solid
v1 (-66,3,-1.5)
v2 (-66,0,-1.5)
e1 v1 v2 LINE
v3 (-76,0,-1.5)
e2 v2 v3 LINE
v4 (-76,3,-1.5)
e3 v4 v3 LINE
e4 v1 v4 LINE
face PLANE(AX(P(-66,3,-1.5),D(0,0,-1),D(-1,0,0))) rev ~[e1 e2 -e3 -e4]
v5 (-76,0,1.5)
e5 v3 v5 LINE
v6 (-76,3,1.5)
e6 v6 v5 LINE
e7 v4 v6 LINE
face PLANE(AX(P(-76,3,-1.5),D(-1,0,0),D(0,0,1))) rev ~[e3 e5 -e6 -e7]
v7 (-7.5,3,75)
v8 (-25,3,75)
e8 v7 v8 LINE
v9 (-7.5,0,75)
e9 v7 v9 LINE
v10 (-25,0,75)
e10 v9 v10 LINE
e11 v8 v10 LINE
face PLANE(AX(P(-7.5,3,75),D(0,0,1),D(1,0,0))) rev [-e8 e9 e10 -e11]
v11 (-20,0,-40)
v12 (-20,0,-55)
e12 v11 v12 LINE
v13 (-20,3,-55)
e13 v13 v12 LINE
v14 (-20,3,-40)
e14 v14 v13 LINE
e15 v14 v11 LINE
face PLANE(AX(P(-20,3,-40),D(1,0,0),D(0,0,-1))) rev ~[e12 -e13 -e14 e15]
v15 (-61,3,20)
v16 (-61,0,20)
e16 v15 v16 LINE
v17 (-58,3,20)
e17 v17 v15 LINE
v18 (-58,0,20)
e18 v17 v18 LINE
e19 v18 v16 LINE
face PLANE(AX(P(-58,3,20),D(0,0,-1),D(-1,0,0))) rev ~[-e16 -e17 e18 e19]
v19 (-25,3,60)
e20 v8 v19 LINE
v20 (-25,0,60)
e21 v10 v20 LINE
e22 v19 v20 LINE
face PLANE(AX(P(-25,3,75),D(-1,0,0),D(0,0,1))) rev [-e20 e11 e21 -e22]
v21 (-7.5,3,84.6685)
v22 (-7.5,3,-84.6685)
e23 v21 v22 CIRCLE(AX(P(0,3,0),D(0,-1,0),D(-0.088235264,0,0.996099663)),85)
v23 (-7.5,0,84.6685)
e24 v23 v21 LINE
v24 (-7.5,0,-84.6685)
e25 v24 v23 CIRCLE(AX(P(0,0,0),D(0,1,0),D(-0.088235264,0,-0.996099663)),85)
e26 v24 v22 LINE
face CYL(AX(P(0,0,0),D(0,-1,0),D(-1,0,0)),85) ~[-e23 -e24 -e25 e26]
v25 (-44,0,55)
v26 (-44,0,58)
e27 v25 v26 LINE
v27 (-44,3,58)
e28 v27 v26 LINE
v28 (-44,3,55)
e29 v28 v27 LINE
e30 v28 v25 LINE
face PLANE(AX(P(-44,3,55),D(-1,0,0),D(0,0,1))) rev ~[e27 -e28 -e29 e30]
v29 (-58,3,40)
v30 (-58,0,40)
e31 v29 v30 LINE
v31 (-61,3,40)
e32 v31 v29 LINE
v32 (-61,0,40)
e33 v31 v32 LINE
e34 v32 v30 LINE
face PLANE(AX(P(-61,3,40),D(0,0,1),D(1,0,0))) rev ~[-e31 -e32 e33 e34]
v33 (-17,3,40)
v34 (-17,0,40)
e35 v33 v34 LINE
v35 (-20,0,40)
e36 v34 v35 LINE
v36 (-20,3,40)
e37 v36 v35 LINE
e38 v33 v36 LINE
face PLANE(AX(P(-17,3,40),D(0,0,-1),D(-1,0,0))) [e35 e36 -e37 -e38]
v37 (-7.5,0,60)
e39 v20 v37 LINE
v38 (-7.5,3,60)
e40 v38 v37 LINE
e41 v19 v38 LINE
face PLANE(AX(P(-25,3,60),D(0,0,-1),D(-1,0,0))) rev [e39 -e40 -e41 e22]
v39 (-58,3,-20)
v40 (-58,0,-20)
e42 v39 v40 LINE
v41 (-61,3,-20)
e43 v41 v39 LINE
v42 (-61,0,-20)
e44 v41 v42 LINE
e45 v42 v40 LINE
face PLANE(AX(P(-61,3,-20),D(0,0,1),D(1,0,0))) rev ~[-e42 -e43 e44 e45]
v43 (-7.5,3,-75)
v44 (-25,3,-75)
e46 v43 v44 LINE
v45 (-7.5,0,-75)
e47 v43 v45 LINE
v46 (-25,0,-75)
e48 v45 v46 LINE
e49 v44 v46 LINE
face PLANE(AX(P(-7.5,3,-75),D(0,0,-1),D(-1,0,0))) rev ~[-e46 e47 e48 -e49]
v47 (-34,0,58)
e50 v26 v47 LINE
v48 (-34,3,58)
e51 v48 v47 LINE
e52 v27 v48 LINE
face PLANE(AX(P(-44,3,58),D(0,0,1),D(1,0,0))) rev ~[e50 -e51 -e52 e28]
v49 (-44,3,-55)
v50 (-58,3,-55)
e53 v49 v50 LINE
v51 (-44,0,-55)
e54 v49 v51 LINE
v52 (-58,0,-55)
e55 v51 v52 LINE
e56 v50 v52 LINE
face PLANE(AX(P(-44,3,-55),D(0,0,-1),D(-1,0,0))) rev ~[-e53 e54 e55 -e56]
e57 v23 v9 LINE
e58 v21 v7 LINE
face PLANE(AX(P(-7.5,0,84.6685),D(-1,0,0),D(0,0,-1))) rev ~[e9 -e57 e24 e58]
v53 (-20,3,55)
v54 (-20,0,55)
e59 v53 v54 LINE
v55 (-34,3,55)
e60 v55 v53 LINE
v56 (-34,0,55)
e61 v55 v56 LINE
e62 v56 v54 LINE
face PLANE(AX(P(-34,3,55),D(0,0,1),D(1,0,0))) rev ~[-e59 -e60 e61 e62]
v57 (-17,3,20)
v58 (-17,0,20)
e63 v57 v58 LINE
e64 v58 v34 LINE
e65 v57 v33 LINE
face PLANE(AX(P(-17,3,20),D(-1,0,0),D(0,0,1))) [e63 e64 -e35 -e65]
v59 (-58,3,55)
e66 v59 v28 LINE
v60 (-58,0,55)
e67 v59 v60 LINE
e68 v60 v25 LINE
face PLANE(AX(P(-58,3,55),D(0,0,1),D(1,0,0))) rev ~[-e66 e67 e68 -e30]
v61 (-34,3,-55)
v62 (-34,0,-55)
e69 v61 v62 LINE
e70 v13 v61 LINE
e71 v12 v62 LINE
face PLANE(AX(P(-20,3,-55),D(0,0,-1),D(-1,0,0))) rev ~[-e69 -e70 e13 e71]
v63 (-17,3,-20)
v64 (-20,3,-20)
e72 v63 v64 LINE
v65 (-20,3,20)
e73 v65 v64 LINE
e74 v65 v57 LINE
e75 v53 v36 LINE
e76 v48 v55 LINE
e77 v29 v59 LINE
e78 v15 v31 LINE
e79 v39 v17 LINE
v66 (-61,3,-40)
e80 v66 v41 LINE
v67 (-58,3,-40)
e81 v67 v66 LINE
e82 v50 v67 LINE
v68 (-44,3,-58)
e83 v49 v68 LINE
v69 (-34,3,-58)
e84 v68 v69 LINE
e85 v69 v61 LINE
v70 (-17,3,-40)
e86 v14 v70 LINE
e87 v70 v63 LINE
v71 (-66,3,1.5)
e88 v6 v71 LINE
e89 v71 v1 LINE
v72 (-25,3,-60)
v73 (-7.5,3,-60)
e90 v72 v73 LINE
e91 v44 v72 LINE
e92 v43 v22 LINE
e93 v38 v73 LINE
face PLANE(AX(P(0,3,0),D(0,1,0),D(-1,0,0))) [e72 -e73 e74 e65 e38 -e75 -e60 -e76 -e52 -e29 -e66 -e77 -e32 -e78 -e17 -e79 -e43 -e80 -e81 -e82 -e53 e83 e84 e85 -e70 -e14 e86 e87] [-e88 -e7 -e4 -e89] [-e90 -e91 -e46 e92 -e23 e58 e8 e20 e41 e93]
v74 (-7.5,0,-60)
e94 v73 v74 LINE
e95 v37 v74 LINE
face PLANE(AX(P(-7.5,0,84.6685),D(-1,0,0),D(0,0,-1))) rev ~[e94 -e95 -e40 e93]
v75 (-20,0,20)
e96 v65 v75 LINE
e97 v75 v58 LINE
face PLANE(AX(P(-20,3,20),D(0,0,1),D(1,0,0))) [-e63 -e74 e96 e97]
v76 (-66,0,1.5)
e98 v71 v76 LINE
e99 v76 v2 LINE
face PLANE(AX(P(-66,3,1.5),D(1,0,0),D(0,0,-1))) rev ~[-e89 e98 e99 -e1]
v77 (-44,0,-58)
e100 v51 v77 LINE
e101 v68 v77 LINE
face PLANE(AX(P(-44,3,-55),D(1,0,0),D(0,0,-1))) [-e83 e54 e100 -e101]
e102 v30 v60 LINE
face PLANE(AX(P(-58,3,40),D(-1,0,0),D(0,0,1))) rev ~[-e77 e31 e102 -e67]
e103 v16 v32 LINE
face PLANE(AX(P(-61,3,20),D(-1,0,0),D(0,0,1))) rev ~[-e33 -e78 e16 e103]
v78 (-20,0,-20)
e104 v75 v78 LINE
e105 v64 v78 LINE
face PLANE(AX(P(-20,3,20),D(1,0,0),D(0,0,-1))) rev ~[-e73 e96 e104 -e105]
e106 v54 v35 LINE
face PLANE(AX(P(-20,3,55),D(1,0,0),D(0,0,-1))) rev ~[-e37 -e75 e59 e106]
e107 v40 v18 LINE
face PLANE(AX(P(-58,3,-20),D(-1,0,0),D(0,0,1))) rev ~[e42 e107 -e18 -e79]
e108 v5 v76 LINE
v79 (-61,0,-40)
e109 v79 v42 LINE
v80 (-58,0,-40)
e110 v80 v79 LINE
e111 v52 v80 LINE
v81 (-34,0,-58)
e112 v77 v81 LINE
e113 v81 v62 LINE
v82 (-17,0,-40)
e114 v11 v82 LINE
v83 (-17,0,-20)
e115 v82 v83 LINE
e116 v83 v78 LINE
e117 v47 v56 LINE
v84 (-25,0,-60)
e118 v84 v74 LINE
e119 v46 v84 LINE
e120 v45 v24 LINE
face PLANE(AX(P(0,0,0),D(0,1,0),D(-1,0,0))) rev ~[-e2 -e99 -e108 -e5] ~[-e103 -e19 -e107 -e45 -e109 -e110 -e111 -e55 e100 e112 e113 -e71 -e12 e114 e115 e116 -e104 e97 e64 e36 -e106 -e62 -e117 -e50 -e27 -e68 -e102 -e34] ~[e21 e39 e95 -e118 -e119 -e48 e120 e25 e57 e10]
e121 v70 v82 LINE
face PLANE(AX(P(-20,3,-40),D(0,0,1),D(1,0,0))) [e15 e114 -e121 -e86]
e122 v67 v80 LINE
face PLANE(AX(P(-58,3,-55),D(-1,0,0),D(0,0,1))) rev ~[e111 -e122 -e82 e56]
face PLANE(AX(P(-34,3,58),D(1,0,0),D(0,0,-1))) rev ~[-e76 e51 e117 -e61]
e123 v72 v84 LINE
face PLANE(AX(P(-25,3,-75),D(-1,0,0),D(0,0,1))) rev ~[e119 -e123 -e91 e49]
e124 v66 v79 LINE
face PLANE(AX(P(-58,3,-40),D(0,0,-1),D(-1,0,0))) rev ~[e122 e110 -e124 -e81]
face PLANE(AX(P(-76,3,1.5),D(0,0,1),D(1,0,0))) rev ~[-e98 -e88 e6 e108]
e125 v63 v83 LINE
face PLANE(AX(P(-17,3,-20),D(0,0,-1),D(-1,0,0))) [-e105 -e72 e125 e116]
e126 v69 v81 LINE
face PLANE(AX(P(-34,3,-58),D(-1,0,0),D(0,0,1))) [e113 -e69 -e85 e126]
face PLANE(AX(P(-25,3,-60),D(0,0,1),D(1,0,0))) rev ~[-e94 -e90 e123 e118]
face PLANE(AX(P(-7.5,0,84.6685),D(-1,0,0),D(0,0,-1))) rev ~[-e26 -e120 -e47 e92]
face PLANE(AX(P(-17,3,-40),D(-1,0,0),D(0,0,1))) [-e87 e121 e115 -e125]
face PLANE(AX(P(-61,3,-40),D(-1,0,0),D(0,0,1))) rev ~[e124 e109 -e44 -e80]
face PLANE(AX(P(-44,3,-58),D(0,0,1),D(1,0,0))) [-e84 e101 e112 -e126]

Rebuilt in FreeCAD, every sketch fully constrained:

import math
import FreeCAD as App
import Part
import Sketcher
from FreeCAD import Vector
Q = App.Units.Quantity

doc = App.newDocument("Part")
body = doc.addObject("PartDesign::Body", "Body")

# Sketch on XZ plane
sketch1 = body.newObject("Sketcher::SketchObject", "Sketch")
sketch1.AttachmentSupport = (doc.getObject("XZ_Plane"), [""])
sketch1.MapMode = "FlatFace"
sketch1.addGeometry(Part.ArcOfCircle(Part.Circle(Vector(0, 0, 0), Vector(0, 0, 1), 85), math.radians(95.062091), math.radians(264.937909)), False)
sketch1.addGeometry(Part.LineSegment(Vector(-7.5, -84.6685, 0), Vector(-7.5, 84.6685, 0)), False)
sketch1.addConstraint(Sketcher.Constraint("Coincident", 0, 1, 1, 2))
sketch1.addConstraint(Sketcher.Constraint("Coincident", 1, 1, 0, 2))
sketch1.addConstraint(Sketcher.Constraint("Vertical", 1))
sketch1.addConstraint(Sketcher.Constraint("Coincident", 0, 3, -1, 1))
sketch1.addConstraint(Sketcher.Constraint("Radius", 0, Q("85 mm")))
sketch1.addConstraint(Sketcher.Constraint("DistanceX", 0, 1, -1, 1, Q("7.5 mm")))
pad1 = body.newObject("PartDesign::Pad", "Pad")
pad1.Profile = sketch1
pad1.Length = 3
pad1.Reversed = True

# Sketch on XZ plane
sketch2 = body.newObject("Sketcher::SketchObject", "Sketch001")
sketch2.AttachmentSupport = (doc.getObject("XZ_Plane"), [""])
sketch2.MapMode = "FlatFace"
sketch2.AttachmentOffset = App.Placement(Vector(0, 0, -3), App.Rotation())
sketch2.addGeometry(Part.LineSegment(Vector(-17, -40, 0), Vector(-20, -40, 0)), False)
sketch2.addGeometry(Part.LineSegment(Vector(-20, -40, 0), Vector(-20, -55, 0)), False)
sketch2.addGeometry(Part.LineSegment(Vector(-20, -55, 0), Vector(-34, -55, 0)), False)
sketch2.addGeometry(Part.LineSegment(Vector(-34, -55, 0), Vector(-34, -58, 0)), False)
sketch2.addGeometry(Part.LineSegment(Vector(-34, -58, 0), Vector(-44, -58, 0)), False)
sketch2.addGeometry(Part.LineSegment(Vector(-44, -58, 0), Vector(-44, -55, 0)), False)
sketch2.addGeometry(Part.LineSegment(Vector(-44, -55, 0), Vector(-58, -55, 0)), False)
sketch2.addGeometry(Part.LineSegment(Vector(-58, -55, 0), Vector(-58, -40, 0)), False)
sketch2.addGeometry(Part.LineSegment(Vector(-58, -40, 0), Vector(-61, -40, 0)), False)
sketch2.addGeometry(Part.LineSegment(Vector(-61, -40, 0), Vector(-61, -20, 0)), False)
sketch2.addGeometry(Part.LineSegment(Vector(-61, -20, 0), Vector(-58, -20, 0)), False)
sketch2.addGeometry(Part.LineSegment(Vector(-58, -20, 0), Vector(-58, 20, 0)), False)
sketch2.addGeometry(Part.LineSegment(Vector(-58, 20, 0), Vector(-61, 20, 0)), False)
sketch2.addGeometry(Part.LineSegment(Vector(-61, 20, 0), Vector(-61, 40, 0)), False)
sketch2.addGeometry(Part.LineSegment(Vector(-61, 40, 0), Vector(-58, 40, 0)), False)
sketch2.addGeometry(Part.LineSegment(Vector(-58, 40, 0), Vector(-58, 55, 0)), False)
sketch2.addGeometry(Part.LineSegment(Vector(-58, 55, 0), Vector(-44, 55, 0)), False)
sketch2.addGeometry(Part.LineSegment(Vector(-44, 55, 0), Vector(-44, 58, 0)), False)
sketch2.addGeometry(Part.LineSegment(Vector(-44, 58, 0), Vector(-34, 58, 0)), False)
sketch2.addGeometry(Part.LineSegment(Vector(-34, 58, 0), Vector(-34, 55, 0)), False)
sketch2.addGeometry(Part.LineSegment(Vector(-34, 55, 0), Vector(-20, 55, 0)), False)
sketch2.addGeometry(Part.LineSegment(Vector(-20, 55, 0), Vector(-20, 40, 0)), False)
sketch2.addGeometry(Part.LineSegment(Vector(-20, 40, 0), Vector(-17, 40, 0)), False)
sketch2.addGeometry(Part.LineSegment(Vector(-17, 40, 0), Vector(-17, 20, 0)), False)
sketch2.addGeometry(Part.LineSegment(Vector(-17, 20, 0), Vector(-20, 20, 0)), False)
sketch2.addGeometry(Part.LineSegment(Vector(-20, 20, 0), Vector(-20, -20, 0)), False)
sketch2.addGeometry(Part.LineSegment(Vector(-20, -20, 0), Vector(-17, -20, 0)), False)
sketch2.addGeometry(Part.LineSegment(Vector(-17, -20, 0), Vector(-17, -40, 0)), False)
sketch2.addConstraint(Sketcher.Constraint("Coincident", 0, 2, 1, 1))
sketch2.addConstraint(Sketcher.Constraint("Coincident", 1, 2, 2, 1))
sketch2.addConstraint(Sketcher.Constraint("Coincident", 2, 2, 3, 1))
sketch2.addConstraint(Sketcher.Constraint("Coincident", 3, 2, 4, 1))
sketch2.addConstraint(Sketcher.Constraint("Coincident", 4, 2, 5, 1))
sketch2.addConstraint(Sketcher.Constraint("Coincident", 5, 2, 6, 1))
sketch2.addConstraint(Sketcher.Constraint("Coincident", 6, 2, 7, 1))
sketch2.addConstraint(Sketcher.Constraint("Coincident", 7, 2, 8, 1))
sketch2.addConstraint(Sketcher.Constraint("Coincident", 8, 2, 9, 1))
sketch2.addConstraint(Sketcher.Constraint("Coincident", 9, 2, 10, 1))
sketch2.addConstraint(Sketcher.Constraint("Coincident", 10, 2, 11, 1))
sketch2.addConstraint(Sketcher.Constraint("Coincident", 11, 2, 12, 1))
sketch2.addConstraint(Sketcher.Constraint("Coincident", 12, 2, 13, 1))
sketch2.addConstraint(Sketcher.Constraint("Coincident", 13, 2, 14, 1))
sketch2.addConstraint(Sketcher.Constraint("Coincident", 14, 2, 15, 1))
sketch2.addConstraint(Sketcher.Constraint("Coincident", 15, 2, 16, 1))
sketch2.addConstraint(Sketcher.Constraint("Coincident", 16, 2, 17, 1))
sketch2.addConstraint(Sketcher.Constraint("Coincident", 17, 2, 18, 1))
sketch2.addConstraint(Sketcher.Constraint("Coincident", 18, 2, 19, 1))
sketch2.addConstraint(Sketcher.Constraint("Coincident", 19, 2, 20, 1))
sketch2.addConstraint(Sketcher.Constraint("Coincident", 20, 2, 21, 1))
sketch2.addConstraint(Sketcher.Constraint("Coincident", 21, 2, 22, 1))
sketch2.addConstraint(Sketcher.Constraint("Coincident", 22, 2, 23, 1))
sketch2.addConstraint(Sketcher.Constraint("Coincident", 23, 2, 24, 1))
sketch2.addConstraint(Sketcher.Constraint("Coincident", 24, 2, 25, 1))
sketch2.addConstraint(Sketcher.Constraint("Coincident", 25, 2, 26, 1))
sketch2.addConstraint(Sketcher.Constraint("Coincident", 26, 2, 27, 1))
sketch2.addConstraint(Sketcher.Constraint("Coincident", 27, 2, 0, 1))
sketch2.addConstraint(Sketcher.Constraint("Horizontal", 0))
sketch2.addConstraint(Sketcher.Constraint("Vertical", 1))
sketch2.addConstraint(Sketcher.Constraint("Horizontal", 2))
sketch2.addConstraint(Sketcher.Constraint("Vertical", 3))
sketch2.addConstraint(Sketcher.Constraint("Horizontal", 4))
sketch2.addConstraint(Sketcher.Constraint("Vertical", 5))
sketch2.addConstraint(Sketcher.Constraint("Horizontal", 6))
sketch2.addConstraint(Sketcher.Constraint("Vertical", 7))
sketch2.addConstraint(Sketcher.Constraint("Horizontal", 8))
sketch2.addConstraint(Sketcher.Constraint("Vertical", 9))
sketch2.addConstraint(Sketcher.Constraint("Horizontal", 10))
sketch2.addConstraint(Sketcher.Constraint("Vertical", 11))
sketch2.addConstraint(Sketcher.Constraint("Horizontal", 12))
sketch2.addConstraint(Sketcher.Constraint("Vertical", 13))
sketch2.addConstraint(Sketcher.Constraint("Horizontal", 14))
sketch2.addConstraint(Sketcher.Constraint("Vertical", 15))
sketch2.addConstraint(Sketcher.Constraint("Horizontal", 16))
sketch2.addConstraint(Sketcher.Constraint("Vertical", 17))
sketch2.addConstraint(Sketcher.Constraint("Horizontal", 18))
sketch2.addConstraint(Sketcher.Constraint("Vertical", 19))
sketch2.addConstraint(Sketcher.Constraint("Horizontal", 20))
sketch2.addConstraint(Sketcher.Constraint("Vertical", 21))
sketch2.addConstraint(Sketcher.Constraint("Horizontal", 22))
sketch2.addConstraint(Sketcher.Constraint("Vertical", 23))
sketch2.addConstraint(Sketcher.Constraint("Horizontal", 24))
sketch2.addConstraint(Sketcher.Constraint("Vertical", 25))
sketch2.addConstraint(Sketcher.Constraint("Horizontal", 26))
sketch2.addConstraint(Sketcher.Constraint("Vertical", 27))
sketch2.addConstraint(Sketcher.Constraint("Symmetric", 9, 2, 12, 2, -1))
sketch2.addConstraint(Sketcher.Constraint("Symmetric", 7, 2, 14, 2, -1))
sketch2.addConstraint(Sketcher.Constraint("Symmetric", 5, 2, 16, 2, -1))
sketch2.addConstraint(Sketcher.Constraint("Symmetric", 3, 2, 18, 2, -1))
sketch2.addConstraint(Sketcher.Constraint("Symmetric", 1, 2, 20, 2, -1))
sketch2.addConstraint(Sketcher.Constraint("Symmetric", 23, 2, 26, 2, -1))
sketch2.addConstraint(Sketcher.Constraint("Horizontal", 2, 2, 5, 2))
sketch2.addConstraint(Sketcher.Constraint("Horizontal", 0, 2, 7, 2))
sketch2.addConstraint(Sketcher.Constraint("Horizontal", 14, 2, 21, 2))
sketch2.addConstraint(Sketcher.Constraint("Horizontal", 12, 2, 23, 2))
sketch2.addConstraint(Sketcher.Constraint("Vertical", 7, 2, 10, 2))
sketch2.addConstraint(Sketcher.Constraint("Vertical", 21, 2, 24, 2))
sketch2.addConstraint(Sketcher.Constraint("Equal", 2, 6))
sketch2.addConstraint(Sketcher.Constraint("Equal", 0, 8))
sketch2.addConstraint(Sketcher.Constraint("Equal", 26, 3))
sketch2.addConstraint(Sketcher.Constraint("DistanceX", 0, 2, 0, 1, Q("3 mm")))
sketch2.addConstraint(Sketcher.Constraint("DistanceX", 4, 2, 4, 1, Q("10 mm")))
sketch2.addConstraint(Sketcher.Constraint("DistanceY", 9, 1, 9, 2, Q("20 mm")))
sketch2.addConstraint(Sketcher.Constraint("DistanceX", 0, 2, -1, 1, Q("20 mm")))
sketch2.addConstraint(Sketcher.Constraint("DistanceY", 9, 2, -1, 1, Q("20 mm")))
sketch2.addConstraint(Sketcher.Constraint("DistanceX", 6, 2, 1, 2, Q("38 mm")))
sketch2.addConstraint(Sketcher.Constraint("DistanceY", 4, 2, 9, 2, Q("38 mm")))
pocket1 = body.newObject("PartDesign::Pocket", "Pocket")
pocket1.Profile = sketch2
pocket1.Length = 3
pocket1.Reversed = True

# Sketch on XZ plane
sketch3 = body.newObject("Sketcher::SketchObject", "Sketch002")
sketch3.AttachmentSupport = (doc.getObject("XZ_Plane"), [""])
sketch3.MapMode = "FlatFace"
sketch3.AttachmentOffset = App.Placement(Vector(0, 0, -3), App.Rotation())
sketch3.addGeometry(Part.LineSegment(Vector(-66, 1.5, 0), Vector(-66, -1.5, 0)), False)
sketch3.addGeometry(Part.LineSegment(Vector(-66, -1.5, 0), Vector(-76, -1.5, 0)), False)
sketch3.addGeometry(Part.LineSegment(Vector(-76, -1.5, 0), Vector(-76, 1.5, 0)), False)
sketch3.addGeometry(Part.LineSegment(Vector(-76, 1.5, 0), Vector(-66, 1.5, 0)), False)
sketch3.addConstraint(Sketcher.Constraint("Coincident", 0, 2, 1, 1))
sketch3.addConstraint(Sketcher.Constraint("Coincident", 1, 2, 2, 1))
sketch3.addConstraint(Sketcher.Constraint("Coincident", 2, 2, 3, 1))
sketch3.addConstraint(Sketcher.Constraint("Coincident", 3, 2, 0, 1))
sketch3.addConstraint(Sketcher.Constraint("Vertical", 0))
sketch3.addConstraint(Sketcher.Constraint("Horizontal", 1))
sketch3.addConstraint(Sketcher.Constraint("Vertical", 2))
sketch3.addConstraint(Sketcher.Constraint("Horizontal", 3))
sketch3.addConstraint(Sketcher.Constraint("DistanceX", 1, 2, 1, 1, Q("10 mm")))
sketch3.addConstraint(Sketcher.Constraint("DistanceY", 0, 2, 0, 1, Q("3 mm")))
sketch3.addConstraint(Sketcher.Constraint("DistanceX", 0, 2, -1, 1, Q("66 mm")))
sketch3.addConstraint(Sketcher.Constraint("DistanceY", 0, 2, -1, 1, Q("1.5 mm")))
pocket2 = body.newObject("PartDesign::Pocket", "Pocket001")
pocket2.Profile = sketch3
pocket2.Length = 3
pocket2.Reversed = True

# Sketch on XZ plane
sketch4 = body.newObject("Sketcher::SketchObject", "Sketch003")
sketch4.AttachmentSupport = (doc.getObject("XZ_Plane"), [""])
sketch4.MapMode = "FlatFace"
sketch4.AttachmentOffset = App.Placement(Vector(0, 0, -3), App.Rotation())
sketch4.addGeometry(Part.LineSegment(Vector(-25, -60, 0), Vector(-7.5, -60, 0)), False)
sketch4.addGeometry(Part.LineSegment(Vector(-7.5, -60, 0), Vector(-7.5, -75, 0)), False)
sketch4.addGeometry(Part.LineSegment(Vector(-7.5, -75, 0), Vector(-25, -75, 0)), False)
sketch4.addGeometry(Part.LineSegment(Vector(-25, -75, 0), Vector(-25, -60, 0)), False)
sketch4.addConstraint(Sketcher.Constraint("Coincident", 0, 2, 1, 1))
sketch4.addConstraint(Sketcher.Constraint("Coincident", 1, 2, 2, 1))
sketch4.addConstraint(Sketcher.Constraint("Coincident", 2, 2, 3, 1))
sketch4.addConstraint(Sketcher.Constraint("Coincident", 3, 2, 0, 1))
sketch4.addConstraint(Sketcher.Constraint("Horizontal", 0))
sketch4.addConstraint(Sketcher.Constraint("Vertical", 1))
sketch4.addConstraint(Sketcher.Constraint("Horizontal", 2))
sketch4.addConstraint(Sketcher.Constraint("Vertical", 3))
sketch4.addConstraint(Sketcher.Constraint("DistanceY", 1, 2, 1, 1, Q("15 mm")))
sketch4.addConstraint(Sketcher.Constraint("DistanceY", 0, 2, -1, 1, Q("60 mm")))
sketch4.addConstraint(Sketcher.Constraint("DistanceX", 2, 2, -1, 1, Q("25 mm")))
sketch4.addConstraint(Sketcher.Constraint("DistanceX", 0, 1, 0, 2, Q("17.5 mm")))
pocket3 = body.newObject("PartDesign::Pocket", "Pocket002")
pocket3.Profile = sketch4
pocket3.Length = 3
pocket3.Reversed = True
doc.recompute()

mirrored = body.newObject("PartDesign::Mirrored", "Mirrored")
mirrored.Originals = [pocket3]
mirrored.MirrorPlane = (doc.getObject("XY_Plane"), [""])
body.Tip = mirrored

doc.recompute()
